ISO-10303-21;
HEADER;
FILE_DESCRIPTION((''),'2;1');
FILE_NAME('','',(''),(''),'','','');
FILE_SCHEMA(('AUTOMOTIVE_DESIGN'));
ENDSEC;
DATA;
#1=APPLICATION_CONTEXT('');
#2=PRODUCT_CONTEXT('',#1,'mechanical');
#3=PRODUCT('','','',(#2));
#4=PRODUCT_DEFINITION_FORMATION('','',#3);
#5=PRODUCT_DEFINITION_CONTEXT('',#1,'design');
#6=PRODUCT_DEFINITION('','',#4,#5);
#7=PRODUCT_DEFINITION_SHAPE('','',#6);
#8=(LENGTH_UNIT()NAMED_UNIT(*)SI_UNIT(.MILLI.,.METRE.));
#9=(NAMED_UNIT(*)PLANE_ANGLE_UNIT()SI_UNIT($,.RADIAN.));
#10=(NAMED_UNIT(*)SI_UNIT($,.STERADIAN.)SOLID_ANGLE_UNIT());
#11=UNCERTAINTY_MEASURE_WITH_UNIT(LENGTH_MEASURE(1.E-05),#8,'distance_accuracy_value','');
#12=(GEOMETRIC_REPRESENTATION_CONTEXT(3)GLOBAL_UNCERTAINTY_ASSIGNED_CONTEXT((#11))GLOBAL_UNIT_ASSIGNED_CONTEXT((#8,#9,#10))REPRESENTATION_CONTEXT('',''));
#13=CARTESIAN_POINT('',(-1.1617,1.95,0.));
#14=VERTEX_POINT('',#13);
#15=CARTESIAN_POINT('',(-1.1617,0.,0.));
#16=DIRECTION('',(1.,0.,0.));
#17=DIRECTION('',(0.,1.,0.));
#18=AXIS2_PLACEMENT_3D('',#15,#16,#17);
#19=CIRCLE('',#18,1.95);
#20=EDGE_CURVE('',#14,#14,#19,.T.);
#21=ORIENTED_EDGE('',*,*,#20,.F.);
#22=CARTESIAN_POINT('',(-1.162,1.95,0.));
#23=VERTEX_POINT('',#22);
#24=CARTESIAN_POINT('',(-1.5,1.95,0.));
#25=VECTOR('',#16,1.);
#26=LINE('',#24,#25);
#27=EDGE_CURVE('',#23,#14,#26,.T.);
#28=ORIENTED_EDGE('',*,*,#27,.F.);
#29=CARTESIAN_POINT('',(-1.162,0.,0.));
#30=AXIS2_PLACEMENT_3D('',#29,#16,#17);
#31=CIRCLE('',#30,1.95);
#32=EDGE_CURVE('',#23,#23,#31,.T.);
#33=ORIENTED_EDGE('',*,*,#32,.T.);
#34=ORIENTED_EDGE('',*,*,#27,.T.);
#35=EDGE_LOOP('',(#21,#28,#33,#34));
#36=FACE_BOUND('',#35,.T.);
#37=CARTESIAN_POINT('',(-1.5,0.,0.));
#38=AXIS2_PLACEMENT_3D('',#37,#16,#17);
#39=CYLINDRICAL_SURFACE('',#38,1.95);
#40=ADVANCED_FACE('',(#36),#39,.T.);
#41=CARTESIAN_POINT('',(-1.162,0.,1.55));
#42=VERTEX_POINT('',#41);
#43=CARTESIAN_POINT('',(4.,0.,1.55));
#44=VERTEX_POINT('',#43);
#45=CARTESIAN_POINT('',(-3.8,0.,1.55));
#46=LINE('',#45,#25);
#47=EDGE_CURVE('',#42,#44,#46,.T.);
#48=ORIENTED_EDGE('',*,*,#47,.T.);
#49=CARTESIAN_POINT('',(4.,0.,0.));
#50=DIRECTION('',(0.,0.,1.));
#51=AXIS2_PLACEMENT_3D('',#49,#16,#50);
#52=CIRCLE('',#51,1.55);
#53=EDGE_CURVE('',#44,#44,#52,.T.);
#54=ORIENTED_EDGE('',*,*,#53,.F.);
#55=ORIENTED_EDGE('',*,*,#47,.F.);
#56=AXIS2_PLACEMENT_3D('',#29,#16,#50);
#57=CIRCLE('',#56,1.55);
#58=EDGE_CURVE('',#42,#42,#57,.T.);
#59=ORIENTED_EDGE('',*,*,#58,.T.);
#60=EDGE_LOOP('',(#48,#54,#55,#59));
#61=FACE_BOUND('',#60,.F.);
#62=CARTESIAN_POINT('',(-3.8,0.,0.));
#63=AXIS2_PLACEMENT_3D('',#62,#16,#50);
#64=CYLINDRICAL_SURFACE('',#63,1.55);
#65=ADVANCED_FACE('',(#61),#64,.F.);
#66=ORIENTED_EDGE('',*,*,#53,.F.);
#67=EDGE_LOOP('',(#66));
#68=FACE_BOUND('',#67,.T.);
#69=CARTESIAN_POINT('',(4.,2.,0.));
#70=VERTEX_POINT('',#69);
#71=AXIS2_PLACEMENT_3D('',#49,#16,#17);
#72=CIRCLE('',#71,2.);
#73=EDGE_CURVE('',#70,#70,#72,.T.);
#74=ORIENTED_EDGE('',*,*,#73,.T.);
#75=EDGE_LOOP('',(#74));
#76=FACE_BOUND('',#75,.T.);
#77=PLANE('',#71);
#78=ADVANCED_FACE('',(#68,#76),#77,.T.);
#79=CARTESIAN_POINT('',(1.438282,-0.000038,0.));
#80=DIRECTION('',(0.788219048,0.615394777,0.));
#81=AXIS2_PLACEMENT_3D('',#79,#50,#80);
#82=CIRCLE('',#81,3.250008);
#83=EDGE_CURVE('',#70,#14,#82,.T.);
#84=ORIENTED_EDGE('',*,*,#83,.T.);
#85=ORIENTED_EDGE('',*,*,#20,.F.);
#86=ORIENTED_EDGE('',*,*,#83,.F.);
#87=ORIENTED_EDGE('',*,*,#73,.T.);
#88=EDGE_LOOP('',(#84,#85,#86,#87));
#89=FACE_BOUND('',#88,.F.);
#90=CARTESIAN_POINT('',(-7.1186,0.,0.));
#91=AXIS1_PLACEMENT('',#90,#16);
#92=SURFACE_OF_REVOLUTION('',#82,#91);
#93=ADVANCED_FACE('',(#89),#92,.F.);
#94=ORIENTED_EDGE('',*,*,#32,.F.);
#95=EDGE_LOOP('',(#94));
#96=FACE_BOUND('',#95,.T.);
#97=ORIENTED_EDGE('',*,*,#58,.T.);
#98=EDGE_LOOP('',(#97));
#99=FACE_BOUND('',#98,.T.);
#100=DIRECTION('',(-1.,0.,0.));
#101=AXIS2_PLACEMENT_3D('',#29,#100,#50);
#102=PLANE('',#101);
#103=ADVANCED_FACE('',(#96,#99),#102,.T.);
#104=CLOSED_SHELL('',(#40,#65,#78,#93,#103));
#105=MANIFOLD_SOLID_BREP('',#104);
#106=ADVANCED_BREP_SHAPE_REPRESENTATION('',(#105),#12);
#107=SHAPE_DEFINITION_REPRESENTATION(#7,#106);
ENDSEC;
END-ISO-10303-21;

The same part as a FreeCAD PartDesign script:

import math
import FreeCAD as App
import Part
import Sketcher
Q = App.Units.Quantity

doc = App.newDocument("Part")
body = doc.addObject("PartDesign::Body", "Body")

# Sketch on XY plane
sketch1 = body.newObject("Sketcher::SketchObject", "Sketch")
sketch1.AttachmentSupport = (doc.getObject("XY_Plane"), [""])
sketch1.MapMode = "FlatFace"
sketch1.addGeometry([
    Part.LineSegment(App.Vector(-4, 3.25, 0), App.Vector(-4, 0, 0)),  # 0
    Part.LineSegment(App.Vector(-4, 0, 0), App.Vector(4, 0, 0)),  # 1
    Part.LineSegment(App.Vector(4, 0, 0), App.Vector(4, 2, 0)),  # 2
    Part.ArcOfCircle(Part.Circle(App.Vector(1.44, 0, 0), App.Vector(0, 0, 1), 3.25), math.radians(38), math.radians(143)),  # 3
    Part.LineSegment(App.Vector(-1.16, 1.95, 0), App.Vector(-1.5, 1.95, 0)),  # 4
    Part.LineSegment(App.Vector(-1.5, 1.95, 0), App.Vector(-2.5, 3.25, 0)),  # 5
    Part.LineSegment(App.Vector(-2.5, 3.25, 0), App.Vector(-4, 3.25, 0)),  # 6
], False)
sketch1.addConstraint([
    Sketcher.Constraint("Coincident", 0, 2, 1, 1),
    Sketcher.Constraint("Coincident", 1, 2, 2, 1),
    Sketcher.Constraint("Coincident", 2, 2, 3, 1),
    Sketcher.Constraint("Coincident", 3, 2, 4, 1),
    Sketcher.Constraint("Coincident", 4, 2, 5, 1),
    Sketcher.Constraint("Coincident", 5, 2, 6, 1),
    Sketcher.Constraint("Coincident", 6, 2, 0, 1),
    Sketcher.Constraint("Vertical", 0),
    Sketcher.Constraint("Horizontal", 1),
    Sketcher.Constraint("Vertical", 2),
    Sketcher.Constraint("Horizontal", 4),
    Sketcher.Constraint("Horizontal", 6),
    Sketcher.Constraint("Symmetric", 0, 2, 1, 2, -1, 1),
    Sketcher.Constraint("PointOnObject", 3, 3, -1),
    Sketcher.Constraint("DistanceX", 1, 1, 1, 2, Q("8 mm")),
    Sketcher.Constraint("Radius", 3, Q("3.25 mm")),
    Sketcher.Constraint("DistanceX", 6, 2, 6, 1, Q("1.5 mm")),
    Sketcher.Constraint("DistanceX", 4, 2, -1, 1, Q("1.5 mm")),
    Sketcher.Constraint("DistanceY", 2, 1, 2, 2, Q("2 mm")),
    Sketcher.Constraint("DistanceY", 0, 2, 0, 1, Q("3.25 mm")),
    Sketcher.Constraint("DistanceX", 3, 2, 3, 3, Q("2.6 mm")),
])
revolution = body.newObject("PartDesign::Revolution", "Revolution")
revolution.Profile = sketch1
revolution.ReferenceAxis = (sketch1, ["H_Axis"])
revolution.Angle = 360

# Sketch on YZ plane
sketch2 = body.newObject("Sketcher::SketchObject", "Sketch001")
sketch2.AttachmentSupport = (doc.getObject("YZ_Plane"), [""])
sketch2.MapMode = "FlatFace"
sketch2.AttachmentOffset = App.Placement(App.Vector(0, 0, -4), App.Rotation())
sketch2.addGeometry(Part.Circle(App.Vector(0, 0, 0), App.Vector(0, 0, 1), 1.6), False)
sketch2.addConstraint([
    Sketcher.Constraint("Coincident", 0, 3, -1, 1),
    Sketcher.Constraint("Diameter", 0, Q("3.1 mm")),
])
doc.recompute()
hole = body.newObject("PartDesign::Hole", "Hole")
hole.Profile = sketch2
hole.ThreadType = "None"
hole.Diameter = 3.1
hole.DepthType = "ThroughAll"
hole.HoleCutType = "Countersink"
hole.HoleCutDiameter = 3.5
hole.HoleCutCountersinkAngle = 90
hole.Reversed = True

# Sketch on YZ plane
sketch3 = body.newObject("Sketcher::SketchObject", "Sketch002")
sketch3.AttachmentSupport = (doc.getObject("YZ_Plane"), [""])
sketch3.MapMode = "FlatFace"
sketch3.AttachmentOffset = App.Placement(App.Vector(0, 0, -4), App.Rotation())
sketch3.addGeometry(Part.Circle(App.Vector(0, 0, 0), App.Vector(0, 0, 1), 3.2), False)
sketch3.addConstraint([
    Sketcher.Constraint("Coincident", 0, 3, -1, 1),
    Sketcher.Constraint("Diameter", 0, Q("6.5 mm")),
])
pocket1 = body.newObject("PartDesign::Pocket", "Pocket")
pocket1.Profile = sketch3
pocket1.Length = 2.838
pocket1.Reversed = True

doc.recompute()
